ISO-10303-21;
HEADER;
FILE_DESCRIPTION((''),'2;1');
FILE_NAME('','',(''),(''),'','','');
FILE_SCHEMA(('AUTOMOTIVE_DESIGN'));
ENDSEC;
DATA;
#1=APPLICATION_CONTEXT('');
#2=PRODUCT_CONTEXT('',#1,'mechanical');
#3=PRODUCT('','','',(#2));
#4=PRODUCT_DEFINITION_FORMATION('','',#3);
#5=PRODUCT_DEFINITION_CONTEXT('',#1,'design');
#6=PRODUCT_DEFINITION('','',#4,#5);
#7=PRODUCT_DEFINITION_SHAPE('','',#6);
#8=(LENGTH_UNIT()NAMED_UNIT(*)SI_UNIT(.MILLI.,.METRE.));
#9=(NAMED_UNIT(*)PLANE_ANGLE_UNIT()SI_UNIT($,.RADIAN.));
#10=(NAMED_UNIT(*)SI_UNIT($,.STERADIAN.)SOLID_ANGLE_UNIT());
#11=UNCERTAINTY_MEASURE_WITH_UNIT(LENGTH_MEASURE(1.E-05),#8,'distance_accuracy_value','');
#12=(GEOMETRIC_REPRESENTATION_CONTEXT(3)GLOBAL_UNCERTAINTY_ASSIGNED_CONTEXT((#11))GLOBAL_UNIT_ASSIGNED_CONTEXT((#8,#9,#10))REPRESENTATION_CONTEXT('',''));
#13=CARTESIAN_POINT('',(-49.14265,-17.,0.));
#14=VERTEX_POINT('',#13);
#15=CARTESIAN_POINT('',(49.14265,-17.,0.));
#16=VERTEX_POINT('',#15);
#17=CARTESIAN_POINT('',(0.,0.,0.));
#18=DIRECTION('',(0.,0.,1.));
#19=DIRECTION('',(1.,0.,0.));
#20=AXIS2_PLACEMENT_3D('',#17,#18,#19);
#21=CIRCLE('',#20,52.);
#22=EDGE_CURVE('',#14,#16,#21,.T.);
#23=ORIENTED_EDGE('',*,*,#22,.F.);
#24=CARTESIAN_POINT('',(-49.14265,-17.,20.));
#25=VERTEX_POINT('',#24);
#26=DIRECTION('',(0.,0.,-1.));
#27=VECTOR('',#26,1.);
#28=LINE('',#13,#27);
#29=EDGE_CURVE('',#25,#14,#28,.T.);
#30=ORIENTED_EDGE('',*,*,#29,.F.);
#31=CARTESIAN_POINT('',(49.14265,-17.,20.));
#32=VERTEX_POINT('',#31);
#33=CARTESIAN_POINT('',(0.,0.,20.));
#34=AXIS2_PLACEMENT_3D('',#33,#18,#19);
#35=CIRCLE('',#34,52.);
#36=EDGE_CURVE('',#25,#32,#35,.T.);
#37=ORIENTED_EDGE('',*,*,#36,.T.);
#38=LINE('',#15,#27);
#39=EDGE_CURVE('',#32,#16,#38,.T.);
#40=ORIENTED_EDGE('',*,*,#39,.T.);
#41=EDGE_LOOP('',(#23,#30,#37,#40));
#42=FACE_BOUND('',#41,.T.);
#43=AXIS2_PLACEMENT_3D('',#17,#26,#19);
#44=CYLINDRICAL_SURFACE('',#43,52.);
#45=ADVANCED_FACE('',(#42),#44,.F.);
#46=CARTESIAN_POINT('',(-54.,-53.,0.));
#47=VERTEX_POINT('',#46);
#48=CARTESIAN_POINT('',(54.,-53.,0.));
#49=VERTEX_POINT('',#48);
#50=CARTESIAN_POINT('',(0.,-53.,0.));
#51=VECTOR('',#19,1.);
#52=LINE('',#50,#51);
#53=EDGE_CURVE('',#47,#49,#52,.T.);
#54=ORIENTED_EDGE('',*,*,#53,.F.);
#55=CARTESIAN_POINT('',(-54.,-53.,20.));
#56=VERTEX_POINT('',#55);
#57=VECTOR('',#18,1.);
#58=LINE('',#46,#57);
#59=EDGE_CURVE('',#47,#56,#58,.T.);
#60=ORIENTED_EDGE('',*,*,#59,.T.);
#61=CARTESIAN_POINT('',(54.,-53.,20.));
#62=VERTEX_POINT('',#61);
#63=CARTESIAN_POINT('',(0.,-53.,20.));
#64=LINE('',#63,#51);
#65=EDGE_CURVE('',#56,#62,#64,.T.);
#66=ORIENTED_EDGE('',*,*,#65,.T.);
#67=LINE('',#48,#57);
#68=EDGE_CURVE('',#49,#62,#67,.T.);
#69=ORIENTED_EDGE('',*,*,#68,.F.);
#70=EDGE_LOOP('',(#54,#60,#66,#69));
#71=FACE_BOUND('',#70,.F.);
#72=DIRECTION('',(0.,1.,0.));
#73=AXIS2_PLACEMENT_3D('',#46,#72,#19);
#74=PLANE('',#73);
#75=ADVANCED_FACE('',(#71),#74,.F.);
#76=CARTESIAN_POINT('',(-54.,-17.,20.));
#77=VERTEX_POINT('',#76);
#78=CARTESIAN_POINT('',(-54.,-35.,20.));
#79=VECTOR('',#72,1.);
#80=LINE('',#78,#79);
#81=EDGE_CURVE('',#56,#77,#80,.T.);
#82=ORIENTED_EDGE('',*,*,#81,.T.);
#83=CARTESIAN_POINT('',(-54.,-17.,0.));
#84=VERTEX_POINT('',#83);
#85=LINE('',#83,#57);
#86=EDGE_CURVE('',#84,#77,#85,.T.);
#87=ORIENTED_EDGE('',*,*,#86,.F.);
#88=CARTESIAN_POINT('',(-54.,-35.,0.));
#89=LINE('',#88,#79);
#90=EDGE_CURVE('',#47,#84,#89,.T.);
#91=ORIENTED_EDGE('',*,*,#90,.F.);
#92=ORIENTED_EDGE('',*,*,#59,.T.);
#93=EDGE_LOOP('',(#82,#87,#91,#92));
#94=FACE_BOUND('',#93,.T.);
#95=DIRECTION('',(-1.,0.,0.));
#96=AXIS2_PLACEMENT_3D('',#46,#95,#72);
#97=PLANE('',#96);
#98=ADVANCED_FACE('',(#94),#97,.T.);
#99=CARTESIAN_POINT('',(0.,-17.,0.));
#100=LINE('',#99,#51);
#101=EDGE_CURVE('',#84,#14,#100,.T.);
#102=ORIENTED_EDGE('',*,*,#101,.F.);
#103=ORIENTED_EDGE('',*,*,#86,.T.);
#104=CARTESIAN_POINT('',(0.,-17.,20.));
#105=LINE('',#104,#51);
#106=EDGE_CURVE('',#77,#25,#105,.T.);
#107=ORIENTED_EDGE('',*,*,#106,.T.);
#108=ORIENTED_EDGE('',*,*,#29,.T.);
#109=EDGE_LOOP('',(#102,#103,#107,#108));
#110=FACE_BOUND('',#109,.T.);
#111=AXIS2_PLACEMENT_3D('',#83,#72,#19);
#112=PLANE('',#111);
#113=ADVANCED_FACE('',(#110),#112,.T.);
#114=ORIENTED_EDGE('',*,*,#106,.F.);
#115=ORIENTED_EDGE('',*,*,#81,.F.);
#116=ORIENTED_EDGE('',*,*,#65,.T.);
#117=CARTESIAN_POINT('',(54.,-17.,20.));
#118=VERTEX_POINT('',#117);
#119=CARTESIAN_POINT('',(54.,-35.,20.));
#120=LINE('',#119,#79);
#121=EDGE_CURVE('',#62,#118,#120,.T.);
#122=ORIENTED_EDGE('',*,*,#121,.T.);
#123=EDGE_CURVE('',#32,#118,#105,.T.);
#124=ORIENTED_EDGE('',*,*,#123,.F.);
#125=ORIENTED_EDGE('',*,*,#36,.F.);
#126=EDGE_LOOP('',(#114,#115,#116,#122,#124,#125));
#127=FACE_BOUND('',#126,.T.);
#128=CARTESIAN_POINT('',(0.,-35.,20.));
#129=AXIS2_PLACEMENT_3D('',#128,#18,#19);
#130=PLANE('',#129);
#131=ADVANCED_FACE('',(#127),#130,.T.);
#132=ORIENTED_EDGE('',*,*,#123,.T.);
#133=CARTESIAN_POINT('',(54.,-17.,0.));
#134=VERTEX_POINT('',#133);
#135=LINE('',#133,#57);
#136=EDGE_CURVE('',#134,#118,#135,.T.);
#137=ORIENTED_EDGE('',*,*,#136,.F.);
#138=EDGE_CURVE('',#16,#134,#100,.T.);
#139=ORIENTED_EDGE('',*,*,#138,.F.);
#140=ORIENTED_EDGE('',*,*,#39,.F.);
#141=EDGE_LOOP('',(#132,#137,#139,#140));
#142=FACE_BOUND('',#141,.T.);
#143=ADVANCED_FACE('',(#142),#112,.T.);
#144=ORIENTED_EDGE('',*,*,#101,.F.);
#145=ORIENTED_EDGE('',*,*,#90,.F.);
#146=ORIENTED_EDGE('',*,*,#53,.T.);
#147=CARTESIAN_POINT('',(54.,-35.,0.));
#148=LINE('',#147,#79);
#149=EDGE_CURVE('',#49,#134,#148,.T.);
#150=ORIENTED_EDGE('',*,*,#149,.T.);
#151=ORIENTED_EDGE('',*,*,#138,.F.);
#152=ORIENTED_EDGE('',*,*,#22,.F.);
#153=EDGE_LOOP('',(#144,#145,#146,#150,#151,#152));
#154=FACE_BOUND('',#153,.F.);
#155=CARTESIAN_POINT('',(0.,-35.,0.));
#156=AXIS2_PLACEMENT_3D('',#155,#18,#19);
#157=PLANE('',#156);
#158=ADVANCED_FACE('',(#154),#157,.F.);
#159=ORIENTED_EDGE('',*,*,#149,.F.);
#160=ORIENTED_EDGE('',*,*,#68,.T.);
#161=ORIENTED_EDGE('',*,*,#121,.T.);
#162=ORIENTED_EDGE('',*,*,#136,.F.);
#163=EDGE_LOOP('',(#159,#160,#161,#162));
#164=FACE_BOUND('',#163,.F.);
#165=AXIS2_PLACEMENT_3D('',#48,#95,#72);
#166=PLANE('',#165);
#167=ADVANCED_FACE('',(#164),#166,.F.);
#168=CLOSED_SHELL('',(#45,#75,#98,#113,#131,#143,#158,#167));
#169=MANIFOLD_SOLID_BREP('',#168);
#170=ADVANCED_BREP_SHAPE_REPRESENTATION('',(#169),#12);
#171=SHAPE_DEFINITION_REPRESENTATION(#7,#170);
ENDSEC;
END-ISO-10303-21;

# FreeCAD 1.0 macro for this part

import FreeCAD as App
import Part
import Sketcher

V = App.Vector
Q = App.Units.Quantity


def add_polygon(sketch, points):
    """Adds a closed chain of lines whose ends are joined by coincident constraints."""
    first, n = sketch.GeometryCount, len(points)
    for a, b in zip(points, points[1:] + points[:1]):
        sketch.addGeometry(Part.LineSegment(App.Vector(*a, 0), App.Vector(*b, 0)), False)
    for i in range(n):
        sketch.addConstraint(Sketcher.Constraint("Coincident", first + i, 2, first + (i + 1) % n, 1))

doc = App.newDocument("Part")
body = doc.addObject("PartDesign::Body", "Body")

# Sketch on YZ plane
sketch1 = doc.addObject("Sketcher::SketchObject", "Sketch")
body.addObject(sketch1)
sketch1.AttachmentSupport = (doc.YZ_Plane, [""])
sketch1.MapMode = "FlatFace"
sketch1.AttachmentOffset = App.Placement(V(0, 0, -4), App.Rotation())
sketch1.addGeometry(Part.Circle(V(3, 3, 0), V(0, 0, 1), 1.5), False)
sketch1.addConstraint([
    Sketcher.Constraint("Diameter", 0, Q("3 mm")),
    Sketcher.Constraint("DistanceX", -1, 1, 0, 3, Q("3 mm")),
    Sketcher.Constraint("DistanceY", -1, 1, 0, 3, Q("3 mm")),
])
pad1 = doc.addObject("PartDesign::Pad", "Pad")
body.addObject(pad1)
pad1.Profile = sketch1
pad1.Length = 4
body2 = doc.addObject("PartDesign::Body", "Body001")

# Sketch on YZ plane
sketch2 = doc.addObject("Sketcher::SketchObject", "Sketch001")
body2.addObject(sketch2)
sketch2.AttachmentSupport = (doc.getObject("YZ_Plane001"), [""])
sketch2.MapMode = "FlatFace"
sketch2.AttachmentOffset = App.Placement(V(0, 0, 2), App.Rotation())
sketch2.addGeometry(Part.Circle(V(3, 3, 0), V(0, 0, 1), 1.5), False)
sketch2.addConstraint([
    Sketcher.Constraint("Diameter", 0, Q("3 mm")),
    Sketcher.Constraint("DistanceX", -1, 1, 0, 3, Q("3 mm")),
    Sketcher.Constraint("DistanceY", -1, 1, 0, 3, Q("3 mm")),
])
pad2 = doc.addObject("PartDesign::Pad", "Pad001")
body2.addObject(pad2)
pad2.Profile = sketch2
pad2.Length = 100
body3 = doc.addObject("PartDesign::Body", "Body002")

# Sketch on XY plane
sketch3 = doc.addObject("Sketcher::SketchObject", "Sketch002")
body3.addObject(sketch3)
sketch3.AttachmentSupport = (doc.getObject("XY_Plane002"), [""])
sketch3.MapMode = "FlatFace"
add_polygon(sketch3, [(0, 6), (0, 0), (2, 0), (2, 6)])  # lines 0-3
sketch3.addConstraint([
    Sketcher.Constraint("Vertical", 0),
    Sketcher.Constraint("Horizontal", 1),
    Sketcher.Constraint("Vertical", 2),
    Sketcher.Constraint("Horizontal", 3),
    Sketcher.Constraint("Coincident", 0, 2, -1, 1),
    Sketcher.Constraint("DistanceX", 1, 1, 1, 2, Q("2 mm")),
    Sketcher.Constraint("DistanceY", 0, 2, 0, 1, Q("6 mm")),
])
pad3 = doc.addObject("PartDesign::Pad", "Pad002")
body3.addObject(pad3)
pad3.Profile = sketch3
pad3.Length = 6
doc.recompute()

boolean = doc.addObject("PartDesign::Boolean", "Boolean")
body3.addObject(boolean)
boolean.Type = "Fuse"
boolean.addObjects([body])
doc.recompute()

boolean2 = doc.addObject("PartDesign::Boolean", "Boolean001")
body3.addObject(boolean2)
boolean2.Type = "Fuse"
boolean2.addObjects([body2])
body4 = doc.addObject("PartDesign::Body", "Body003")
doc.recompute()

body3.Placement = App.Placement(V(-54, 166, 27), App.Rotation(V(0, 0, -1), 90))
boolean3 = doc.addObject("PartDesign::Boolean", "Boolean002")
body4.addObject(boolean3)
boolean3.Type = "Fuse"
boolean3.addObjects([body3])
body5 = doc.addObject("PartDesign::Body", "Body004")

# Sketch on YZ plane
sketch4 = doc.addObject("Sketcher::SketchObject", "Sketch003")
body5.addObject(sketch4)
sketch4.AttachmentSupport = (doc.getObject("YZ_Plane004"), [""])
sketch4.MapMode = "FlatFace"
sketch4.AttachmentOffset = App.Placement(V(0, 0, -4), App.Rotation())
sketch4.addGeometry(Part.Circle(V(3, 3, 0), V(0, 0, 1), 1.5), False)
sketch4.addConstraint([
    Sketcher.Constraint("Diameter", 0, Q("3 mm")),
    Sketcher.Constraint("DistanceX", -1, 1, 0, 3, Q("3 mm")),
    Sketcher.Constraint("DistanceY", -1, 1, 0, 3, Q("3 mm")),
])
pad4 = doc.addObject("PartDesign::Pad", "Pad003")
body5.addObject(pad4)
pad4.Profile = sketch4
pad4.Length = 4
body6 = doc.addObject("PartDesign::Body", "Body005")

# Sketch on YZ plane
sketch5 = doc.addObject("Sketcher::SketchObject", "Sketch004")
body6.addObject(sketch5)
sketch5.AttachmentSupport = (doc.getObject("YZ_Plane005"), [""])
sketch5.MapMode = "FlatFace"
sketch5.AttachmentOffset = App.Placement(V(0, 0, 2), App.Rotation())
sketch5.addGeometry(Part.Circle(V(3, 3, 0), V(0, 0, 1), 1.5), False)
sketch5.addConstraint([
    Sketcher.Constraint("Diameter", 0, Q("3 mm")),
    Sketcher.Constraint("DistanceX", -1, 1, 0, 3, Q("3 mm")),
    Sketcher.Constraint("DistanceY", -1, 1, 0, 3, Q("3 mm")),
])
pad5 = doc.addObject("PartDesign::Pad", "Pad004")
body6.addObject(pad5)
pad5.Profile = sketch5
pad5.Length = 100
body7 = doc.addObject("PartDesign::Body", "Body006")

# Sketch on XY plane
sketch6 = doc.addObject("Sketcher::SketchObject", "Sketch005")
body7.addObject(sketch6)
sketch6.AttachmentSupport = (doc.getObject("XY_Plane006"), [""])
sketch6.MapMode = "FlatFace"
add_polygon(sketch6, [(0, 6), (0, 0), (2, 0), (2, 6)])  # lines 0-3
sketch6.addConstraint([
    Sketcher.Constraint("Vertical", 0),
    Sketcher.Constraint("Horizontal", 1),
    Sketcher.Constraint("Vertical", 2),
    Sketcher.Constraint("Horizontal", 3),
    Sketcher.Constraint("Coincident", 0, 2, -1, 1),
    Sketcher.Constraint("DistanceX", 1, 1, 1, 2, Q("2 mm")),
    Sketcher.Constraint("DistanceY", 0, 2, 0, 1, Q("6 mm")),
])
pad6 = doc.addObject("PartDesign::Pad", "Pad005")
body7.addObject(pad6)
pad6.Profile = sketch6
pad6.Length = 6
doc.recompute()

boolean4 = doc.addObject("PartDesign::Boolean", "Boolean003")
body7.addObject(boolean4)
boolean4.Type = "Fuse"
boolean4.addObjects([body5])
doc.recompute()

boolean5 = doc.addObject("PartDesign::Boolean", "Boolean004")
body7.addObject(boolean5)
boolean5.Type = "Fuse"
boolean5.addObjects([body6])
body8 = doc.addObject("PartDesign::Body", "Body007")
body8.AllowCompound = True
doc.recompute()

body7.Placement = App.Placement(V(48, 166, 27), App.Rotation(V(0, 0, -1), 90))
boolean6 = doc.addObject("PartDesign::Boolean", "Boolean005")
body8.addObject(boolean6)
boolean6.Type = "Fuse"
boolean6.addObjects([body7])
doc.recompute()

boolean7 = doc.addObject("PartDesign::Boolean", "Boolean006")
body8.addObject(boolean7)
boolean7.Type = "Fuse"
boolean7.addObjects([body4])
body9 = doc.addObject("PartDesign::Body", "Body008")

# Sketch on XY plane
sketch7 = doc.addObject("Sketcher::SketchObject", "Sketch006")
body9.addObject(sketch7)
sketch7.AttachmentSupport = (doc.getObject("XY_Plane008"), [""])
sketch7.MapMode = "FlatFace"
sketch7.AttachmentOffset = App.Placement(V(0, 0, 20), App.Rotation())
sketch7.addGeometry(Part.Circle(V(0, 0, 0), V(0, 0, 1), 52), False)
sketch7.addConstraint([
    Sketcher.Constraint("Coincident", 0, 3, -1, 1),
    Sketcher.Constraint("Diameter", 0, Q("104 mm")),
])
pad7 = doc.addObject("PartDesign::Pad", "Pad006")
body9.addObject(pad7)
pad7.Profile = sketch7
pad7.Length = 20
body10 = doc.addObject("PartDesign::Body", "Body009")

# Sketch on XY plane
sketch8 = doc.addObject("Sketcher::SketchObject", "Sketch007")
body10.addObject(sketch8)
sketch8.AttachmentSupport = (doc.getObject("XY_Plane009"), [""])
sketch8.MapMode = "FlatFace"
sketch8.AttachmentOffset = App.Placement(V(0, 0, 20), App.Rotation())
add_polygon(sketch8, [(-54, -17), (-54, -53), (54, -53), (54, -17)])  # lines 0-3
sketch8.addConstraint([
    Sketcher.Constraint("Vertical", 0),
    Sketcher.Constraint("Horizontal", 1),
    Sketcher.Constraint("Vertical", 2),
    Sketcher.Constraint("Horizontal", 3),
    Sketcher.Constraint("DistanceX", 1, 1, 1, 2, Q("108 mm")),
    Sketcher.Constraint("DistanceY", 0, 2, 0, 1, Q("36 mm")),
    Sketcher.Constraint("DistanceX", 0, 2, -1, 1, Q("54 mm")),
    Sketcher.Constraint("DistanceY", 0, 2, -1, 1, Q("53 mm")),
])
pad8 = doc.addObject("PartDesign::Pad", "Pad007")
body10.addObject(pad8)
pad8.Profile = sketch8
pad8.Length = 20
doc.recompute()

boolean8 = doc.addObject("PartDesign::Boolean", "Boolean007")
body10.addObject(boolean8)
boolean8.Type = "Cut"
boolean8.addObjects([body9])
doc.recompute()

boolean9 = doc.addObject("PartDesign::Boolean", "Boolean008")
body10.addObject(boolean9)
boolean9.Type = "Cut"
boolean9.addObjects([body8])
body11 = doc.addObject("PartDesign::Body", "Body010")
doc.recompute()

body10.Placement = App.Placement(V(0, 0, -20), App.Rotation(V(0, 0, 1), 0))
boolean10 = doc.addObject("PartDesign::Boolean", "Boolean009")
body11.addObject(boolean10)
boolean10.Type = "Fuse"
boolean10.addObjects([body10])

doc.recompute()
